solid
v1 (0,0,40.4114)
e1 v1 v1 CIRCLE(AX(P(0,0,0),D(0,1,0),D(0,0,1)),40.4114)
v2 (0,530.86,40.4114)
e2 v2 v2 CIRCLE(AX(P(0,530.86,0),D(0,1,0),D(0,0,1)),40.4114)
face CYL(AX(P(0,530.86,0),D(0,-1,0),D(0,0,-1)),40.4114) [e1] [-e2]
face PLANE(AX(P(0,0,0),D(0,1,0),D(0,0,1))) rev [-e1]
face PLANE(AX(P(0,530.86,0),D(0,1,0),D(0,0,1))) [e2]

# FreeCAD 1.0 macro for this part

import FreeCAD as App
import Part
import Sketcher
Q = App.Units.Quantity

doc = App.newDocument("Part")
body = doc.addObject("PartDesign::Body", "Body")

# Sketch on XZ plane
sketch1 = doc.addObject("Sketcher::SketchObject", "Sketch")
body.addObject(sketch1)
sketch1.AttachmentSupport = (doc.XZ_Plane, [""])
sketch1.MapMode = "FlatFace"
sketch1.addGeometry(Part.Circle(App.Vector(0, 0, 0), App.Vector(0, 0, 1), 40.4114), False)
sketch1.addConstraint([
    Sketcher.Constraint("Coincident", 0, 3, -1, 1),
    Sketcher.Constraint("Diameter", 0, Q("3.182 in")),
])
pad1 = doc.addObject("PartDesign::Pad", "Pad")
body.addObject(pad1)
pad1.Profile = sketch1
pad1.Length = Q("20.9 in")
pad1.Reversed = True

doc.recompute()
